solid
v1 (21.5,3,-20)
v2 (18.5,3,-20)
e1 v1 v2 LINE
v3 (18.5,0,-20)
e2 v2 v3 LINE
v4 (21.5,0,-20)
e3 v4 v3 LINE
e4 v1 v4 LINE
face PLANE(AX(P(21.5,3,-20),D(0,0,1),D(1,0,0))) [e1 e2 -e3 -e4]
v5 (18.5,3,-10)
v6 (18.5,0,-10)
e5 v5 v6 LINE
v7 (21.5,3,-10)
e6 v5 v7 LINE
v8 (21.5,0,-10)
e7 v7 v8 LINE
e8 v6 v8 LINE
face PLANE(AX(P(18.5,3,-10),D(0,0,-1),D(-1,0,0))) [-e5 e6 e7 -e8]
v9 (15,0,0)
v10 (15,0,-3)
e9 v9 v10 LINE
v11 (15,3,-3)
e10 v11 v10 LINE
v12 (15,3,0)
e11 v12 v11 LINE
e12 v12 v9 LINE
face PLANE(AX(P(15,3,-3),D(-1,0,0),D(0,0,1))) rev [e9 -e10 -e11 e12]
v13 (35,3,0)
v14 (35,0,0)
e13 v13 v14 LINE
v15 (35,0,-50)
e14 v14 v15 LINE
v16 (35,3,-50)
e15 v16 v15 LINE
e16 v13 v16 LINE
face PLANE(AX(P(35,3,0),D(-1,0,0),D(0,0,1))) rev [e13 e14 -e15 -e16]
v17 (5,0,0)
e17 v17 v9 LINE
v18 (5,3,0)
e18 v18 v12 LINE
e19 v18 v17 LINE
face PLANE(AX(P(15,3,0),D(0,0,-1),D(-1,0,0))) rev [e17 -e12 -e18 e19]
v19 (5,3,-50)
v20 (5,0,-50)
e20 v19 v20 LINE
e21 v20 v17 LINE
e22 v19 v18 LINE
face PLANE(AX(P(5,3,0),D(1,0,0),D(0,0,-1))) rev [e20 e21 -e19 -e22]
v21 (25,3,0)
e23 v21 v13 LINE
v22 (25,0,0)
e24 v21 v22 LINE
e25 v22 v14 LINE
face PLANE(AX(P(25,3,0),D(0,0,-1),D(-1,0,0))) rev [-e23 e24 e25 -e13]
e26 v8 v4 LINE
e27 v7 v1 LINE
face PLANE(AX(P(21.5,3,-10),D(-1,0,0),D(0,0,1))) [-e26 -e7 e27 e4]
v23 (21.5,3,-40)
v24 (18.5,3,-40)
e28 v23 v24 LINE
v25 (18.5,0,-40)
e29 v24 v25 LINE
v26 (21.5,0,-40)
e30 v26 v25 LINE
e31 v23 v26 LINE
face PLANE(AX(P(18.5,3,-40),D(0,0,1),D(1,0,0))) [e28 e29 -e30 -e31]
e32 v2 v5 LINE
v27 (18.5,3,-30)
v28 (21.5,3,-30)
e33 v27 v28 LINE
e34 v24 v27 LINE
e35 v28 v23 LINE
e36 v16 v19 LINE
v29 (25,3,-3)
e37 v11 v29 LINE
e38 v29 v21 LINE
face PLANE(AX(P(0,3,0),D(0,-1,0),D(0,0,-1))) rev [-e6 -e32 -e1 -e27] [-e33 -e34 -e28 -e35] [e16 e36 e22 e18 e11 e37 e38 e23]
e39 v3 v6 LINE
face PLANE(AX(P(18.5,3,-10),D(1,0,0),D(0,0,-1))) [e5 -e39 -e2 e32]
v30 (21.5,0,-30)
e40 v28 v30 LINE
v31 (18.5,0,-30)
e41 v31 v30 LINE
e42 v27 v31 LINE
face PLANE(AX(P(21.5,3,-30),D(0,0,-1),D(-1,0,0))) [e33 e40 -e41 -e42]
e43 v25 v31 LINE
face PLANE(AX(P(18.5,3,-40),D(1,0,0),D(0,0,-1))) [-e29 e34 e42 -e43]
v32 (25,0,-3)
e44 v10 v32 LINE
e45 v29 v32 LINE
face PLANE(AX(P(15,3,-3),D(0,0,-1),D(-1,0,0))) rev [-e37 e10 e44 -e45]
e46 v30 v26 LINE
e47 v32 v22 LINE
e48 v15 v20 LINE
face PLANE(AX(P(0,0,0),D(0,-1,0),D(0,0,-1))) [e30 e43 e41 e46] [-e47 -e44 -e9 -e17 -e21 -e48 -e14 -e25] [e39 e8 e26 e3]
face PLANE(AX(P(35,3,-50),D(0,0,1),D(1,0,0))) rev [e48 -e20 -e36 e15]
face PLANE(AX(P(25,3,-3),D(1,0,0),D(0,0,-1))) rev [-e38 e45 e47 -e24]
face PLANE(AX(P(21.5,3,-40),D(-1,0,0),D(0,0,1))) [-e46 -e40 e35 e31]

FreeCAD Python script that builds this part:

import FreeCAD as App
import Part
import Sketcher
from FreeCAD import Vector
Q = App.Units.Quantity


def add_polygon(sketch, points):
    """Adds a closed chain of lines whose ends are joined by coincident constraints."""
    first, n = sketch.GeometryCount, len(points)
    for a, b in zip(points, points[1:] + points[:1]):
        sketch.addGeometry(Part.LineSegment(App.Vector(*a, 0), App.Vector(*b, 0)), False)
    for i in range(n):
        sketch.addConstraint(Sketcher.Constraint("Coincident", first + i, 2, first + (i + 1) % n, 1))

doc = App.newDocument("Part")
body = doc.addObject("PartDesign::Body", "Body")

# Sketch on XZ plane
sketch1 = body.newObject("Sketcher::SketchObject", "Sketch")
sketch1.AttachmentSupport = (doc.getObject("XZ_Plane"), [""])
sketch1.MapMode = "FlatFace"
add_polygon(sketch1, [(25, 0), (35, 0), (35, -50), (5, -50), (5, 0), (15, 0), (15, -3), (25, -3)])  # lines 0-7
add_polygon(sketch1, [(21.5, -10), (18.5, -10), (18.5, -20), (21.5, -20)])  # lines 8-11
add_polygon(sketch1, [(21.5, -30), (18.5, -30), (18.5, -40), (21.5, -40)])  # lines 12-15
sketch1.addConstraint(Sketcher.Constraint("Horizontal", 0))
sketch1.addConstraint(Sketcher.Constraint("Vertical", 1))
sketch1.addConstraint(Sketcher.Constraint("Horizontal", 2))
sketch1.addConstraint(Sketcher.Constraint("Vertical", 3))
sketch1.addConstraint(Sketcher.Constraint("Horizontal", 4))
sketch1.addConstraint(Sketcher.Constraint("Vertical", 5))
sketch1.addConstraint(Sketcher.Constraint("Horizontal", 6))
sketch1.addConstraint(Sketcher.Constraint("Vertical", 7))
sketch1.addConstraint(Sketcher.Constraint("Horizontal", 8))
sketch1.addConstraint(Sketcher.Constraint("Vertical", 9))
sketch1.addConstraint(Sketcher.Constraint("Horizontal", 10))
sketch1.addConstraint(Sketcher.Constraint("Vertical", 11))
sketch1.addConstraint(Sketcher.Constraint("Horizontal", 12))
sketch1.addConstraint(Sketcher.Constraint("Vertical", 13))
sketch1.addConstraint(Sketcher.Constraint("Horizontal", 14))
sketch1.addConstraint(Sketcher.Constraint("Vertical", 15))
sketch1.addConstraint(Sketcher.Constraint("PointOnObject", 0, 2, -1))
sketch1.addConstraint(Sketcher.Constraint("PointOnObject", 3, 2, -1))
sketch1.addConstraint(Sketcher.Constraint("Vertical", 9, 2, 12, 2))
sketch1.addConstraint(Sketcher.Constraint("Vertical", 11, 2, 14, 2))
sketch1.addConstraint(Sketcher.Constraint("Equal", 0, 4))
sketch1.addConstraint(Sketcher.Constraint("Equal", 4, 6))
sketch1.addConstraint(Sketcher.Constraint("Equal", 14, 5))
sketch1.addConstraint(Sketcher.Constraint("Equal", 6, 9))
sketch1.addConstraint(Sketcher.Constraint("Equal", 11, 13))
sketch1.addConstraint(Sketcher.Constraint("DistanceX", 0, 1, 0, 2, Q("10 mm")))
sketch1.addConstraint(Sketcher.Constraint("DistanceX", 8, 2, 8, 1, Q("3 mm")))
sketch1.addConstraint(Sketcher.Constraint("DistanceY", 1, 2, 1, 1, Q("50 mm")))
sketch1.addConstraint(Sketcher.Constraint("DistanceX", -1, 1, 0, 2, Q("35 mm")))
sketch1.addConstraint(Sketcher.Constraint("DistanceY", 8, 2, -1, 1, Q("10 mm")))
sketch1.addConstraint(Sketcher.Constraint("DistanceY", 12, 2, -1, 1, Q("30 mm")))
sketch1.addConstraint(Sketcher.Constraint("DistanceX", -1, 1, 8, 2, Q("18.5 mm")))
pad1 = body.newObject("PartDesign::Pad", "Pad")
pad1.Profile = sketch1
pad1.Length = 3
pad1.Reversed = True

doc.recompute()
